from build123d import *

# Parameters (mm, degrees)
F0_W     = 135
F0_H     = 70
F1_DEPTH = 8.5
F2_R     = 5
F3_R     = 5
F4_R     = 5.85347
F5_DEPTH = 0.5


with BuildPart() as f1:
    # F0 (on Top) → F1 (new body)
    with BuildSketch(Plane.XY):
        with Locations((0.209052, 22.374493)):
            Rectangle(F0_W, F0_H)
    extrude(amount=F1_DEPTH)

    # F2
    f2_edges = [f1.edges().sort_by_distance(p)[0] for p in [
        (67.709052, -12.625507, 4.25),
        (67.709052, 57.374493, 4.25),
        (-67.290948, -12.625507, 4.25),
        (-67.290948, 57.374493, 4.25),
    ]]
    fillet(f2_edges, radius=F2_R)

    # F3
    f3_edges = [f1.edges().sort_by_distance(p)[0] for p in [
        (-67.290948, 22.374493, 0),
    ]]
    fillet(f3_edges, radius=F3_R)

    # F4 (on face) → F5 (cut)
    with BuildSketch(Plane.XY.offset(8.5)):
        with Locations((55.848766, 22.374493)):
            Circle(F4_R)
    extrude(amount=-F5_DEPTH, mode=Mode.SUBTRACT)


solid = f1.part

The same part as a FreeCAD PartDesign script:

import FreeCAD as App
import Part
import Sketcher
Q = App.Units.Quantity


def edges_at(feature, points):
    """Names of the edges that pass closest to the given points."""
    edges = feature.Shape.Edges
    near = lambda p: min(range(len(edges)), key=lambda i: edges[i].distToShape(Part.Vertex(*p))[0])
    return sorted({f"Edge{near(p) + 1}" for p in points})

doc = App.newDocument("Part")
body = doc.addObject("PartDesign::Body", "Body")

# Sketch on XY plane
sketch1 = body.newObject("Sketcher::SketchObject", "Sketch")
sketch1.AttachmentSupport = (doc.getObject("XY_Plane"), [""])
sketch1.MapMode = "FlatFace"
sketch1.addGeometry([
    Part.LineSegment(App.Vector(-67, 57, 0), App.Vector(-67, -13, 0)),
    Part.LineSegment(App.Vector(-67, -13, 0), App.Vector(68, -13, 0)),
    Part.LineSegment(App.Vector(68, -13, 0), App.Vector(68, 57, 0)),
    Part.LineSegment(App.Vector(68, 57, 0), App.Vector(-67, 57, 0)),
], False)
sketch1.addConstraint([
    Sketcher.Constraint("Coincident", 0, 2, 1, 1),
    Sketcher.Constraint("Coincident", 1, 2, 2, 1),
    Sketcher.Constraint("Coincident", 2, 2, 3, 1),
    Sketcher.Constraint("Coincident", 3, 2, 0, 1),
    Sketcher.Constraint("Vertical", 0),
    Sketcher.Constraint("Horizontal", 1),
    Sketcher.Constraint("Vertical", 2),
    Sketcher.Constraint("Horizontal", 3),
    Sketcher.Constraint("DistanceX", 1, 1, 1, 2, Q("135 mm")),
    Sketcher.Constraint("DistanceY", 0, 2, 0, 1, Q("70 mm")),
    Sketcher.Constraint("DistanceX", 0, 2, -1, 1, Q("67.290948 mm")),
    Sketcher.Constraint("DistanceY", 0, 2, -1, 1, Q("12.625507 mm")),
])
pad1 = body.newObject("PartDesign::Pad", "Pad")
pad1.Profile = sketch1
pad1.Length = 8.5
doc.recompute()

fillet = body.newObject("PartDesign::Fillet", "Fillet")
fillet.Base = (pad1, edges_at(pad1, [
    (67.709, -12.626, 4.25),
    (67.709, 57.374, 4.25),
    (-67.291, -12.626, 4.25),
    (-67.291, 57.374, 4.25),
]))
fillet.Radius = 5
doc.recompute()

fillet2 = body.newObject("PartDesign::Fillet", "Fillet001")
fillet2.Base = (fillet, edges_at(fillet, [(-67.291, 22.374, 0)]))
fillet2.Radius = 5

# Sketch on XY plane
sketch2 = body.newObject("Sketcher::SketchObject", "Sketch001")
sketch2.AttachmentSupport = (doc.getObject("XY_Plane"), [""])
sketch2.MapMode = "FlatFace"
sketch2.AttachmentOffset = App.Placement(App.Vector(0, 0, 8.5), App.Rotation())
sketch2.addGeometry(Part.Circle(App.Vector(56, 22, 0), App.Vector(0, 0, 1), 6), False)
sketch2.addConstraint([
    Sketcher.Constraint("Diameter", 0, Q("11.70694 mm")),
    Sketcher.Constraint("DistanceX", -1, 1, 0, 3, Q("55.848766 mm")),
    Sketcher.Constraint("DistanceY", -1, 1, 0, 3, Q("22.374493 mm")),
])
pocket1 = body.newObject("PartDesign::Pocket", "Pocket")
pocket1.Profile = sketch2
pocket1.Length = 0.5

doc.recompute()
